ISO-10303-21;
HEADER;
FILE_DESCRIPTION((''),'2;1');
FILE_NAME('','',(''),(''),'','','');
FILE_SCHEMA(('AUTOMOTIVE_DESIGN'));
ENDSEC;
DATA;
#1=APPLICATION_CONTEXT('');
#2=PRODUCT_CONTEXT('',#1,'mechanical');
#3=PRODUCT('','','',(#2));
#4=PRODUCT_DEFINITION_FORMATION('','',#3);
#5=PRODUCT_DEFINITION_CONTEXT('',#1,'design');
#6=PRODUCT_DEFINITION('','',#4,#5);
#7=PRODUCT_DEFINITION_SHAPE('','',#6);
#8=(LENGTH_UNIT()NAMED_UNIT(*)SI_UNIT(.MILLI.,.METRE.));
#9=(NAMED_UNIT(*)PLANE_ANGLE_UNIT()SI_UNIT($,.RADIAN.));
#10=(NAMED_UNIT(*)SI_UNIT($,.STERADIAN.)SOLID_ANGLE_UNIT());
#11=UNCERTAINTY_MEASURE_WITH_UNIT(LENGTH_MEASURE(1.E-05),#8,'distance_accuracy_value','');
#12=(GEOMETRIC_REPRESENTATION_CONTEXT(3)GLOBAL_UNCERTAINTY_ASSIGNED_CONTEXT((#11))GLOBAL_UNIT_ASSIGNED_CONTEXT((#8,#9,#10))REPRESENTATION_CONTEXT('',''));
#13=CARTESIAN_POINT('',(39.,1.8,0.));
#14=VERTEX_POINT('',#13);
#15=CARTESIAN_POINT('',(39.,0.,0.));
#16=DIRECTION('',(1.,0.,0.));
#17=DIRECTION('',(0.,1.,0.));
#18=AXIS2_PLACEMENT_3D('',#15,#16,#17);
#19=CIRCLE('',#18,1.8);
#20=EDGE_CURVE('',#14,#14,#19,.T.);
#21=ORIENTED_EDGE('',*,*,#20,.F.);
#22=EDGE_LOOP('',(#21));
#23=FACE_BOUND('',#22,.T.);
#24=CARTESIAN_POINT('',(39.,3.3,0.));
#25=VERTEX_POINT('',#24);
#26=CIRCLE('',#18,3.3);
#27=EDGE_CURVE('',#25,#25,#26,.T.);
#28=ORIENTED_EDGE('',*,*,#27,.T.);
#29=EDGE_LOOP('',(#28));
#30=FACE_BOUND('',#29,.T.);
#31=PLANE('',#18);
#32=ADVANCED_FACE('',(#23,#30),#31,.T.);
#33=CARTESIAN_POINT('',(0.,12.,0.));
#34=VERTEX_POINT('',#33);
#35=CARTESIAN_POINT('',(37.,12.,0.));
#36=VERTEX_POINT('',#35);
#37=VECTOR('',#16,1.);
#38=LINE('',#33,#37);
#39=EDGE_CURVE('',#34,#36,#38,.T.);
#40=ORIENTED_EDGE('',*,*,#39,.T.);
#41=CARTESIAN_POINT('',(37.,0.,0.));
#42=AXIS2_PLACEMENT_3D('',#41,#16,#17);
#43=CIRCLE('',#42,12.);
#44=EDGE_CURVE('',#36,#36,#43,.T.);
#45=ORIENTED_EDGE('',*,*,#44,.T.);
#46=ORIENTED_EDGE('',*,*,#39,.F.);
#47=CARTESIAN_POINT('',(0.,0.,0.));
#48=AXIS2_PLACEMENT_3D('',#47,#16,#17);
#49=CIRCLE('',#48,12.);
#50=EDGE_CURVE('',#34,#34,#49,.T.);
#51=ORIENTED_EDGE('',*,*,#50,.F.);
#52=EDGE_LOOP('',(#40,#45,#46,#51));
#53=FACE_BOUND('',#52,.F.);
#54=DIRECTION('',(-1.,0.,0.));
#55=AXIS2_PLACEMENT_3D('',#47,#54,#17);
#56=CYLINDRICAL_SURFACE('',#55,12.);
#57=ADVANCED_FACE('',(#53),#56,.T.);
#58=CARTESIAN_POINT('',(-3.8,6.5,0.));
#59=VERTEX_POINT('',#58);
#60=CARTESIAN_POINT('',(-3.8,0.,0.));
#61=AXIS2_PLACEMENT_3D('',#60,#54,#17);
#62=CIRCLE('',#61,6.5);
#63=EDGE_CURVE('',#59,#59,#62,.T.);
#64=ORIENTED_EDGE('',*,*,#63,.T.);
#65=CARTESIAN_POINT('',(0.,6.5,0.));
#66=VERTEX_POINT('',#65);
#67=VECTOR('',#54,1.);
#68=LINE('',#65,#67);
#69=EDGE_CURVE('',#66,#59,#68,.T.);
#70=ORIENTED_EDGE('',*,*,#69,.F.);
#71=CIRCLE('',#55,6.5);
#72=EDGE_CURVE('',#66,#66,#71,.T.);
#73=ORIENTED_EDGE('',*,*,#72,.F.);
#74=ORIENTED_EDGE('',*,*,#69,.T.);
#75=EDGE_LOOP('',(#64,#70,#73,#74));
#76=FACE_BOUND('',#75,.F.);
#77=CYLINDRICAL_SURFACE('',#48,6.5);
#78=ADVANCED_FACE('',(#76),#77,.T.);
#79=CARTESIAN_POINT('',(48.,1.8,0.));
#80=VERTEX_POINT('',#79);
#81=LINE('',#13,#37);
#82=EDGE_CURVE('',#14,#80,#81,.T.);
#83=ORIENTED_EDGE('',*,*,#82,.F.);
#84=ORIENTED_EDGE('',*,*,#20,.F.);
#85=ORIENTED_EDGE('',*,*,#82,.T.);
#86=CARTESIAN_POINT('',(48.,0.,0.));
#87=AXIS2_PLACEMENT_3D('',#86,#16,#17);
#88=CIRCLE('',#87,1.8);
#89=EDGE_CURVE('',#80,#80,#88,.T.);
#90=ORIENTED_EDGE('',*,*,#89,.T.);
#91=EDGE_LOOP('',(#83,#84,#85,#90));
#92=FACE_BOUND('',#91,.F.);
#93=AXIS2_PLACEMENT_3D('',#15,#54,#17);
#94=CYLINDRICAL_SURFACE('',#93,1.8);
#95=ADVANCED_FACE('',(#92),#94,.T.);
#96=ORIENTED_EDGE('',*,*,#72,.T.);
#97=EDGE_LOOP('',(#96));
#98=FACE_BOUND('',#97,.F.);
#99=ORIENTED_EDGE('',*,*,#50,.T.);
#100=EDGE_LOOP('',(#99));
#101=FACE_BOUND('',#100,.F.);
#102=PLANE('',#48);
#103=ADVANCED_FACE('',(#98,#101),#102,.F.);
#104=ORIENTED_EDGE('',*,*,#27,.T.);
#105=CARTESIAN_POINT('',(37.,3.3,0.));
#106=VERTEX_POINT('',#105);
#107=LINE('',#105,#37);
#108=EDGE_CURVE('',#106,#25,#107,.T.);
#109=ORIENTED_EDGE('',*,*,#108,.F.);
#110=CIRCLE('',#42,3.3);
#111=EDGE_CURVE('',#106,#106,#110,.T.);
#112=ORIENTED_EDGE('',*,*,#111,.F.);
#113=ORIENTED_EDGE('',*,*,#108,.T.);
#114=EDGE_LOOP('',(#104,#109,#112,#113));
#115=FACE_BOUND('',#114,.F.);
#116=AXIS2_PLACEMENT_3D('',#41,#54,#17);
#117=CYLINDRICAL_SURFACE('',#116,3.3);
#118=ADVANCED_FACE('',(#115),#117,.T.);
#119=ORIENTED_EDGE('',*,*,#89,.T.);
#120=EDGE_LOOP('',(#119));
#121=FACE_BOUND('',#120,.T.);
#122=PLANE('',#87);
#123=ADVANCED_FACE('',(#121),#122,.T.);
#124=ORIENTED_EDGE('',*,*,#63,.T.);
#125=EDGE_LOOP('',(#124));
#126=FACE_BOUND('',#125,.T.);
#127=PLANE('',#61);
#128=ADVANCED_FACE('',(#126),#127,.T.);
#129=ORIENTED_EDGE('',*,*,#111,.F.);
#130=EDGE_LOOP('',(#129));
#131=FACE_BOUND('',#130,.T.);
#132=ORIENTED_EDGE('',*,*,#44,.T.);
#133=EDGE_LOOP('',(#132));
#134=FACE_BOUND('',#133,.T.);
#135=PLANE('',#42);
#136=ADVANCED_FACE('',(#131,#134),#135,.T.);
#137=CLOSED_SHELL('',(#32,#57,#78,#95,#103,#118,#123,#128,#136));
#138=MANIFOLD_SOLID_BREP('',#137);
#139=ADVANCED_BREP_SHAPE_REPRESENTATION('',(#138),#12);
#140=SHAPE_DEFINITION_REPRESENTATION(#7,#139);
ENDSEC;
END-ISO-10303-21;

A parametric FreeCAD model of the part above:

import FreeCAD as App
import Part
import Sketcher

V = App.Vector
Q = App.Units.Quantity

doc = App.newDocument("Part")
body = doc.addObject("PartDesign::Body", "Body")

sketch1 = body.newObject("Sketcher::SketchObject", "Sketch")
sketch1.AttachmentSupport = (doc.getObject("YZ_Plane"), [""])
sketch1.MapMode = "FlatFace"
sketch1.addGeometry(Part.Circle(V(0, 0, 0), V(0, 0, 1), 12), False)
sketch1.addConstraint([
    Sketcher.Constraint("Coincident", 0, 3, -1, 1),
    Sketcher.Constraint("Diameter", 0, Q("24 mm")),
])
pad1 = body.newObject("PartDesign::Pad", "Pad")
pad1.Profile = sketch1
pad1.Length = 37

sketch2 = body.newObject("Sketcher::SketchObject", "Sketch001")
sketch2.AttachmentSupport = (doc.getObject("YZ_Plane"), [""])
sketch2.MapMode = "FlatFace"
sketch2.AttachmentOffset = App.Placement(V(0, 0, 37), App.Rotation())
sketch2.addGeometry(Part.Circle(V(0, 0, 0), V(0, 0, 1), 3.3), False)
sketch2.addConstraint([
    Sketcher.Constraint("Coincident", 0, 3, -1, 1),
    Sketcher.Constraint("Diameter", 0, Q("6.6 mm")),
])
pad2 = body.newObject("PartDesign::Pad", "Pad001")
pad2.Profile = sketch2
pad2.Length = 2

sketch3 = body.newObject("Sketcher::SketchObject", "Sketch002")
sketch3.AttachmentSupport = (doc.getObject("YZ_Plane"), [""])
sketch3.MapMode = "FlatFace"
sketch3.addGeometry(Part.Circle(V(0, 0, 0), V(0, 0, 1), 6), False)
sketch3.addConstraint([
    Sketcher.Constraint("Coincident", 0, 3, -1, 1),
    Sketcher.Constraint("Diameter", 0, Q("13 mm")),
])
pad3 = body.newObject("PartDesign::Pad", "Pad002")
pad3.Profile = sketch3
pad3.Length = 3.8
pad3.Reversed = True

sketch4 = body.newObject("Sketcher::SketchObject", "Sketch003")
sketch4.AttachmentSupport = (doc.getObject("YZ_Plane"), [""])
sketch4.MapMode = "FlatFace"
sketch4.AttachmentOffset = App.Placement(V(0, 0, 39), App.Rotation())
sketch4.addGeometry(Part.Circle(V(0, 0, 0), V(0, 0, 1), 1.8), False)
sketch4.addConstraint([
    Sketcher.Constraint("Coincident", 0, 3, -1, 1),
    Sketcher.Constraint("Diameter", 0, Q("3.6 mm")),
])
pad4 = body.newObject("PartDesign::Pad", "Pad003")
pad4.Profile = sketch4
pad4.Length = 9

doc.recompute()
